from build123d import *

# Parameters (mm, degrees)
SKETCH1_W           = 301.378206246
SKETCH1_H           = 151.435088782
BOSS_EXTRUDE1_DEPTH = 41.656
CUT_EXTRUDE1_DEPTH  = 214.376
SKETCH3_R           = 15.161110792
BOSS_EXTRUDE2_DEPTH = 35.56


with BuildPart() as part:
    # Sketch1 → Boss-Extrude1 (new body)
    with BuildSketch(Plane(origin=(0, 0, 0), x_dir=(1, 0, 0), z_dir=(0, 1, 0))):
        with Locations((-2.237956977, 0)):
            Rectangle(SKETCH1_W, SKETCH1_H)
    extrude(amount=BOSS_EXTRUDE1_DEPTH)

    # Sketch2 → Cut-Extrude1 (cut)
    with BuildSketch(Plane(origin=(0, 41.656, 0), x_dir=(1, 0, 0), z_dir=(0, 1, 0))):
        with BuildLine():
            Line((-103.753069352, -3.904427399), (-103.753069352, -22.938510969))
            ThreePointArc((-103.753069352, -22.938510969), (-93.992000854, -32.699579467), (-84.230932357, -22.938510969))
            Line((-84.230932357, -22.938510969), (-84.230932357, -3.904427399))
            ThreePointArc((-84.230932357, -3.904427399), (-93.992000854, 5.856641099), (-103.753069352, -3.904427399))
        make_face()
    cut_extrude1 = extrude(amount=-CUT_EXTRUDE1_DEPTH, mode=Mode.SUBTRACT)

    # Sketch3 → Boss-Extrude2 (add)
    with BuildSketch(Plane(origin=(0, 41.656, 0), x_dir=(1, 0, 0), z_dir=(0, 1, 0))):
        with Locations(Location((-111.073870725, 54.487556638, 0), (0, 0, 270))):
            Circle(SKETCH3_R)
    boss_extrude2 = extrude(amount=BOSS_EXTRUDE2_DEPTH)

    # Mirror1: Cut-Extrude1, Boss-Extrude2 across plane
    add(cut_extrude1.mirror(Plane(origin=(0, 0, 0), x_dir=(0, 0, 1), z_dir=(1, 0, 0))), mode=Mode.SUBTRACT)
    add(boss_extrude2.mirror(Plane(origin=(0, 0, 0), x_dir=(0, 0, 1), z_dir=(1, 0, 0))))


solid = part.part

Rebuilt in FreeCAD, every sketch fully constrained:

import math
import FreeCAD as App
import Part
import Sketcher
Q = App.Units.Quantity


def add_polygon(sketch, points):
    """Adds a closed chain of lines whose ends are joined by coincident constraints."""
    first, n = sketch.GeometryCount, len(points)
    for a, b in zip(points, points[1:] + points[:1]):
        sketch.addGeometry(Part.LineSegment(App.Vector(*a, 0), App.Vector(*b, 0)), False)
    for i in range(n):
        sketch.addConstraint(Sketcher.Constraint("Coincident", first + i, 2, first + (i + 1) % n, 1))

doc = App.newDocument("Part")
body = doc.addObject("PartDesign::Body", "Body")

sketch1 = doc.addObject("Sketcher::SketchObject", "Sketch")
body.addObject(sketch1)
sketch1.AttachmentSupport = (doc.XZ_Plane, [""])
sketch1.MapMode = "FlatFace"
add_polygon(sketch1, [(-153, -76), (-153, 76), (148, 76), (148, -76)])
sketch1.addConstraint(Sketcher.Constraint("Vertical", 0))
sketch1.addConstraint(Sketcher.Constraint("Horizontal", 1))
sketch1.addConstraint(Sketcher.Constraint("Vertical", 2))
sketch1.addConstraint(Sketcher.Constraint("Horizontal", 3))
sketch1.addConstraint(Sketcher.Constraint("DistanceY", 0, 1, 0, 2, 151.435089))
sketch1.addConstraint(Sketcher.Constraint("DistanceX", 1, 1, 1, 2, 301.378206))
sketch1.addConstraint(Sketcher.Constraint("DistanceX", 0, 2, -1, 1, 152.92706))
sketch1.addConstraint(Sketcher.Constraint("DistanceY", -1, 1, 0, 2, 75.717544))
pad1 = doc.addObject("PartDesign::Pad", "Pad")
body.addObject(pad1)
pad1.Profile = sketch1
pad1.Length = Q("1.64 in")
pad1.Reversed = True

sketch2 = doc.addObject("Sketcher::SketchObject", "Sketch001")
body.addObject(sketch2)
sketch2.AttachmentSupport = (doc.XZ_Plane, [""])
sketch2.MapMode = "FlatFace"
sketch2.AttachmentOffset = App.Placement(App.Vector(0, 0, -1.64 * 25.4), App.Rotation())
sketch2.addGeometry(Part.LineSegment(App.Vector(-104, 4, 0), App.Vector(-104, 23, 0)), False)
sketch2.addGeometry(Part.ArcOfCircle(Part.Circle(App.Vector(-94, 23, 0), App.Vector(0, 0, 1), 10), math.radians(0), math.radians(180)), False)
sketch2.addGeometry(Part.LineSegment(App.Vector(-84, 23, 0), App.Vector(-84, 4, 0)), False)
sketch2.addGeometry(Part.ArcOfCircle(Part.Circle(App.Vector(-94, 4, 0), App.Vector(0, 0, 1), 10), math.radians(180), math.radians(360)), False)
sketch2.addConstraint(Sketcher.Constraint("Tangent", 0, 2, 1, 2))
sketch2.addConstraint(Sketcher.Constraint("Tangent", 1, 1, 2, 1))
sketch2.addConstraint(Sketcher.Constraint("Tangent", 2, 2, 3, 2))
sketch2.addConstraint(Sketcher.Constraint("Tangent", 3, 1, 0, 1))
sketch2.addConstraint(Sketcher.Constraint("Vertical", 0))
sketch2.addConstraint(Sketcher.Constraint("Vertical", 2))
sketch2.addConstraint(Sketcher.Constraint("Radius", 1, 9.761068))
sketch2.addConstraint(Sketcher.Constraint("DistanceX", 1, 3, -1, 1, 93.992001))
sketch2.addConstraint(Sketcher.Constraint("DistanceY", 0, 1, 0, 2, 19.034084))
sketch2.addConstraint(Sketcher.Constraint("DistanceY", -1, 1, 1, 3, 22.938511))
pocket1 = doc.addObject("PartDesign::Pocket", "Pocket")
body.addObject(pocket1)
pocket1.Profile = sketch2
pocket1.Length = Q("8.44 in")
pocket1.Reversed = True

sketch3 = doc.addObject("Sketcher::SketchObject", "Sketch002")
body.addObject(sketch3)
sketch3.AttachmentSupport = (doc.XZ_Plane, [""])
sketch3.MapMode = "FlatFace"
sketch3.AttachmentOffset = App.Placement(App.Vector(0, 0, -1.64 * 25.4), App.Rotation())
sketch3.addGeometry(Part.Circle(App.Vector(-111, -54, 0), App.Vector(0, 0, 1), 15), False)
sketch3.addConstraint(Sketcher.Constraint("Diameter", 0, 30.322222))
sketch3.addConstraint(Sketcher.Constraint("DistanceX", 0, 3, -1, 1, 111.073871))
sketch3.addConstraint(Sketcher.Constraint("DistanceY", 0, 3, -1, 1, 54.487557))
pad2 = doc.addObject("PartDesign::Pad", "Pad001")
body.addObject(pad2)
pad2.Profile = sketch3
pad2.Length = Q("1.4 in")
pad2.Reversed = True
doc.recompute()

mirrored = doc.addObject("PartDesign::Mirrored", "Mirrored")
body.addObject(mirrored)
mirrored.Originals = [pocket1, pad2]
mirrored.MirrorPlane = (doc.YZ_Plane, [""])
body.Tip = mirrored

doc.recompute()
